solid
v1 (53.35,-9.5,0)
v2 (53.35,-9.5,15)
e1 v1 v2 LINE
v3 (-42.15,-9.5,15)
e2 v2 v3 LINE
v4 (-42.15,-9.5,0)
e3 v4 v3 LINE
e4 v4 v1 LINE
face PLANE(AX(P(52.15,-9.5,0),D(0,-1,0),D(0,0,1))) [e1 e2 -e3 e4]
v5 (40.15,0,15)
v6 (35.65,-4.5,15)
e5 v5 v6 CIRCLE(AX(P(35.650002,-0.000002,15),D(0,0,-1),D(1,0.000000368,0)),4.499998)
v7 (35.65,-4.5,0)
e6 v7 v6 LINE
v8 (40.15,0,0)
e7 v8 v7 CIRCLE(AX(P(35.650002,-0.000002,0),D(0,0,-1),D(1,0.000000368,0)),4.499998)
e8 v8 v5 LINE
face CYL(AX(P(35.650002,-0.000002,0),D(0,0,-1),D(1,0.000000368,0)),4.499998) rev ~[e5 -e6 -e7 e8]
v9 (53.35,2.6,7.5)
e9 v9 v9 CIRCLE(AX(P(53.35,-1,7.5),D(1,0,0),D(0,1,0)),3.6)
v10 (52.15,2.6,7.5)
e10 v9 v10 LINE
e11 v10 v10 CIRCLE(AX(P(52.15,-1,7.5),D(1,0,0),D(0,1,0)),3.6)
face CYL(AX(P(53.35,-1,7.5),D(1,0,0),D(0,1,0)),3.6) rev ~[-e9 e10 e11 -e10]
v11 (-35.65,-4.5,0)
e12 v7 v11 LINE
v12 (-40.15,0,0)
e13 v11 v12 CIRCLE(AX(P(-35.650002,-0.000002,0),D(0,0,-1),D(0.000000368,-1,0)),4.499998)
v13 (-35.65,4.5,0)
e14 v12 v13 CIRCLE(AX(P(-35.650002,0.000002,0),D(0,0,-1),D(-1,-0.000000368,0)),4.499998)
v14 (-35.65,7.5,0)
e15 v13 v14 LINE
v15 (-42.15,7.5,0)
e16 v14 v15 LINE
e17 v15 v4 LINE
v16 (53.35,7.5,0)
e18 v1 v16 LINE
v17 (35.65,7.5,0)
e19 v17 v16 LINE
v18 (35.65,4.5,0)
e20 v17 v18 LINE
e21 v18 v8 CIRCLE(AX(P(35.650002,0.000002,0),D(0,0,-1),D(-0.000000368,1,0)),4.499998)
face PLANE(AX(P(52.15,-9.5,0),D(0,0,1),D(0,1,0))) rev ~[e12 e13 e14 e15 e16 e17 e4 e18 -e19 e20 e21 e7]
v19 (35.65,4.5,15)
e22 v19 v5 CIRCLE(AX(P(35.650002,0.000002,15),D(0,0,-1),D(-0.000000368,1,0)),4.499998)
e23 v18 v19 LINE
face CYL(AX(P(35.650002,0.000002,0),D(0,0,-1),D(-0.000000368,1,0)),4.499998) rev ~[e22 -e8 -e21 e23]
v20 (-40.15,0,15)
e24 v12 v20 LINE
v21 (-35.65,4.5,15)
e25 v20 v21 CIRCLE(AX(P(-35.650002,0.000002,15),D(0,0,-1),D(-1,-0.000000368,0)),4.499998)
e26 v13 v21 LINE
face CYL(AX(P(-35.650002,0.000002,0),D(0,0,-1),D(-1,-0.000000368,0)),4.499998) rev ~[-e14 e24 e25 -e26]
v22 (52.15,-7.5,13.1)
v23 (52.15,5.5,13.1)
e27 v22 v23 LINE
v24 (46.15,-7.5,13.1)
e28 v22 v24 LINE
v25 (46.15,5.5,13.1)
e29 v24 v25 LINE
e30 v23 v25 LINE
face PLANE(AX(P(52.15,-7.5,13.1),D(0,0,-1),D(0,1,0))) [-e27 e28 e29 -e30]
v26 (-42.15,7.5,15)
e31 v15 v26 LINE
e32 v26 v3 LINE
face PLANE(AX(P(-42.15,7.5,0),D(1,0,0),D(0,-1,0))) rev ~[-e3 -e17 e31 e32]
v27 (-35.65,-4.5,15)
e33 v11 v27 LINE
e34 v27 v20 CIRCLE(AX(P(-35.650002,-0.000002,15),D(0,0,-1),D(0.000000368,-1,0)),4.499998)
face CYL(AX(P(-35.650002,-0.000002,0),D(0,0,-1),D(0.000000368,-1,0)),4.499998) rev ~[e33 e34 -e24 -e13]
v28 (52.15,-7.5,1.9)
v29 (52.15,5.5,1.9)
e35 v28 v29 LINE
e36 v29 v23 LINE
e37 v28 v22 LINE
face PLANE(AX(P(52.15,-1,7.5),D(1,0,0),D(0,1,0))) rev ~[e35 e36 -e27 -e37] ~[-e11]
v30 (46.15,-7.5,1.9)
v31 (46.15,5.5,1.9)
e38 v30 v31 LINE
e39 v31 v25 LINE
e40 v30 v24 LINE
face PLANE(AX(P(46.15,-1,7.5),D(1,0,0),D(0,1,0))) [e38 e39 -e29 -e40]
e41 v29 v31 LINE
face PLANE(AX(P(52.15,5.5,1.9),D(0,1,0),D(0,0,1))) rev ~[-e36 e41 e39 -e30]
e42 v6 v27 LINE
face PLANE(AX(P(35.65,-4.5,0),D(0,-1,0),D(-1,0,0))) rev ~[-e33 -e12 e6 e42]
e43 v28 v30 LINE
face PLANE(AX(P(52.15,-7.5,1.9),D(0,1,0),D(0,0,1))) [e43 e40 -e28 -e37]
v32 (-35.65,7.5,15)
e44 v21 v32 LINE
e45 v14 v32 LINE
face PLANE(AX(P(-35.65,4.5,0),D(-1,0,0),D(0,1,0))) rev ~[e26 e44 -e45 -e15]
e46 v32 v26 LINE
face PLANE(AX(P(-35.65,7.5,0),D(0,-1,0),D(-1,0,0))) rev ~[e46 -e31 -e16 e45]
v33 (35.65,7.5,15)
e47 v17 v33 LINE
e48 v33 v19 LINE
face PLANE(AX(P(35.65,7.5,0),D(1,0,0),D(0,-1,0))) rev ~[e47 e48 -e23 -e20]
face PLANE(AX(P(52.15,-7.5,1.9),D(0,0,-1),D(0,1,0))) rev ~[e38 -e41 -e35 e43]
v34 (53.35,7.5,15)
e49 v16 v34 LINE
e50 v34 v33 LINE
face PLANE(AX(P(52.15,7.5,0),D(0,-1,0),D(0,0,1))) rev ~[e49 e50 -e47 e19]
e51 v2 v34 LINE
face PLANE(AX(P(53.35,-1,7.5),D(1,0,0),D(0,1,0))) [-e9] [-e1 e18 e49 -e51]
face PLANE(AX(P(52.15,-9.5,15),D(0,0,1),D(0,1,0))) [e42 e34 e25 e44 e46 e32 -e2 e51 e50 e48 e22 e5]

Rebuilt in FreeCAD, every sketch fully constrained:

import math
import FreeCAD as App
import Part
import Sketcher
from FreeCAD import Vector

doc = App.newDocument("Part")
params = doc.addObject("Spreadsheet::Sheet", "Params")
for row, (alias, value) in enumerate([
    ("sketch1_radius", "4.499998 mm"),
    ("sketch1_height", "3 mm"),
    ("sketch1_height2", "17 mm"),
    ("sketch1_width", "71.3 mm"),
    ("sketch1_width2", "6.5 mm"),
    ("pad1_length", "15 mm"),
    ("sketch2_width", "13 mm"),
    ("sketch2_height", "11.2 mm"),
    ("pocket1_length", "6 mm"),
    ("sketch3_width", "17 mm"),
    ("sketch3_height", "15 mm"),
    ("pad2_length", "1.2 mm"),
    ("sketch4_diameter", "7.2 mm"),
    ("pocket2_length", "2 mm"),
], start=1):
    params.set(f"A{row}", alias)
    params.set(f"B{row}", "=" + value)
    params.setAlias(f"B{row}", alias)

body = doc.addObject("PartDesign::Body", "Body")

sketch1 = body.newObject("Sketcher::SketchObject", "Sketch")
sketch1.AttachmentSupport = (doc.getObject("XY_Plane"), [""])
sketch1.MapMode = "FlatFace"
sketch1.addGeometry([
    Part.ArcOfCircle(Part.Circle(Vector(35.7, 0, 0), Vector(0, 0, 1), 4.5), math.radians(-90), math.radians(0)),
    Part.LineSegment(Vector(35.6, -4.5, 0), Vector(-35.6, -4.5, 0)),
    Part.ArcOfCircle(Part.Circle(Vector(-35.7, 0, 0), Vector(0, 0, 1), 4.5), math.radians(180), math.radians(270)),
    Part.ArcOfCircle(Part.Circle(Vector(-35.7, 0, 0), Vector(0, 0, 1), 4.5), math.radians(90), math.radians(180)),
    Part.LineSegment(Vector(-35.6, 4.5, 0), Vector(-35.6, 7.5, 0)),
    Part.LineSegment(Vector(-35.6, 7.5, 0), Vector(-42.1, 7.5, 0)),
    Part.LineSegment(Vector(-42.1, 7.5, 0), Vector(-42.1, -9.5, 0)),
    Part.LineSegment(Vector(-42.1, -9.5, 0), Vector(52.1, -9.5, 0)),
    Part.LineSegment(Vector(52.1, -9.5, 0), Vector(52.1, 7.5, 0)),
    Part.LineSegment(Vector(52.1, 7.5, 0), Vector(35.6, 7.5, 0)),
    Part.LineSegment(Vector(35.6, 7.5, 0), Vector(35.6, 4.5, 0)),
    Part.ArcOfCircle(Part.Circle(Vector(35.7, 0, 0), Vector(0, 0, 1), 4.5), math.radians(0), math.radians(90)),
], False)
sketch1.addConstraint([
    Sketcher.Constraint("Tangent", 0, 1, 1, 1),
    Sketcher.Constraint("Tangent", 1, 2, 2, 2),
    Sketcher.Constraint("Tangent", 2, 1, 3, 2),
    Sketcher.Constraint("Coincident", 3, 1, 4, 1),
    Sketcher.Constraint("Coincident", 4, 2, 5, 1),
    Sketcher.Constraint("Coincident", 5, 2, 6, 1),
    Sketcher.Constraint("Coincident", 6, 2, 7, 1),
    Sketcher.Constraint("Coincident", 7, 2, 8, 1),
    Sketcher.Constraint("Coincident", 8, 2, 9, 1),
    Sketcher.Constraint("Coincident", 9, 2, 10, 1),
    Sketcher.Constraint("Coincident", 10, 2, 11, 2),
    Sketcher.Constraint("Tangent", 11, 1, 0, 2),
    Sketcher.Constraint("Horizontal", 1),
    Sketcher.Constraint("Vertical", 4),
    Sketcher.Constraint("Horizontal", 5),
    Sketcher.Constraint("Vertical", 6),
    Sketcher.Constraint("Horizontal", 7),
    Sketcher.Constraint("Vertical", 8),
    Sketcher.Constraint("Horizontal", 9),
    Sketcher.Constraint("Vertical", 10),
    Sketcher.Constraint("Equal", 0, 2),
    Sketcher.Constraint("Equal", 2, 3),
    Sketcher.Constraint("Equal", 3, 11),
    Sketcher.Constraint("Symmetric", 0, 3, 2, 3, -1, 1),
    Sketcher.Constraint("Symmetric", 4, 2, 9, 2, -2),
    Sketcher.Constraint("PointOnObject", 2, 1, -1),
    Sketcher.Constraint("PointOnObject", 11, 1, -1),
    Sketcher.Constraint("Vertical", 1, 2, 3, 1),
    Sketcher.Constraint("Radius", 0, 4.499998),
    Sketcher.Constraint("DistanceY", 4, 1, 4, 2, 3.0),
    Sketcher.Constraint("DistanceY", 6, 2, 6, 1, 17.0),
    Sketcher.Constraint("DistanceX", 1, 2, 1, 1, 71.3),
    Sketcher.Constraint("DistanceX", 5, 2, 5, 1, 6.5),
    Sketcher.Constraint("DistanceX", 7, 1, 7, 2, 94.3),
])
sketch1.setExpression("Constraints[28]", "Params.sketch1_radius")
sketch1.setExpression("Constraints[29]", "Params.sketch1_height")
sketch1.setExpression("Constraints[30]", "Params.sketch1_height2")
sketch1.setExpression("Constraints[31]", "Params.sketch1_width")
sketch1.setExpression("Constraints[32]", "Params.sketch1_width2")
pad1 = body.newObject("PartDesign::Pad", "Pad")
pad1.Profile = sketch1
pad1.setExpression("Length", "Params.pad1_length")

sketch2 = body.newObject("Sketcher::SketchObject", "Sketch001")
sketch2.AttachmentSupport = (doc.getObject("YZ_Plane"), [""])
sketch2.MapMode = "FlatFace"
sketch2.AttachmentOffset = App.Placement(Vector(0, 0, 52.15), App.Rotation())
sketch2.addGeometry([
    Part.LineSegment(Vector(-8, 13, 0), Vector(-8, 2, 0)),
    Part.LineSegment(Vector(-8, 2, 0), Vector(6, 2, 0)),
    Part.LineSegment(Vector(6, 2, 0), Vector(6, 13, 0)),
    Part.LineSegment(Vector(6, 13, 0), Vector(-8, 13, 0)),
], False)
sketch2.addConstraint([
    Sketcher.Constraint("Coincident", 0, 2, 1, 1),
    Sketcher.Constraint("Coincident", 1, 2, 2, 1),
    Sketcher.Constraint("Coincident", 2, 2, 3, 1),
    Sketcher.Constraint("Coincident", 3, 2, 0, 1),
    Sketcher.Constraint("Vertical", 0),
    Sketcher.Constraint("Horizontal", 1),
    Sketcher.Constraint("Vertical", 2),
    Sketcher.Constraint("Horizontal", 3),
    Sketcher.Constraint("DistanceX", 1, 1, 1, 2, 13.0),
    Sketcher.Constraint("DistanceY", 0, 2, 0, 1, 11.2),
    Sketcher.Constraint("DistanceX", 0, 2, -1, 1, 7.5),
    Sketcher.Constraint("DistanceY", -1, 1, 0, 2, 1.9),
])
sketch2.setExpression("Constraints[8]", "Params.sketch2_width")
sketch2.setExpression("Constraints[9]", "Params.sketch2_height")
pocket1 = body.newObject("PartDesign::Pocket", "Pocket")
pocket1.Profile = sketch2
pocket1.setExpression("Length", "Params.pocket1_length")

sketch3 = body.newObject("Sketcher::SketchObject", "Sketch002")
sketch3.AttachmentSupport = (doc.getObject("YZ_Plane"), [""])
sketch3.MapMode = "FlatFace"
sketch3.AttachmentOffset = App.Placement(Vector(0, 0, 52.15), App.Rotation())
sketch3.addGeometry([
    Part.LineSegment(Vector(-10, 15, 0), Vector(-10, 0, 0)),
    Part.LineSegment(Vector(-10, 0, 0), Vector(8, 0, 0)),
    Part.LineSegment(Vector(8, 0, 0), Vector(8, 15, 0)),
    Part.LineSegment(Vector(8, 15, 0), Vector(-10, 15, 0)),
], False)
sketch3.addConstraint([
    Sketcher.Constraint("Coincident", 0, 2, 1, 1),
    Sketcher.Constraint("Coincident", 1, 2, 2, 1),
    Sketcher.Constraint("Coincident", 2, 2, 3, 1),
    Sketcher.Constraint("Coincident", 3, 2, 0, 1),
    Sketcher.Constraint("Vertical", 0),
    Sketcher.Constraint("Horizontal", 1),
    Sketcher.Constraint("Vertical", 2),
    Sketcher.Constraint("Horizontal", 3),
    Sketcher.Constraint("PointOnObject", 0, 2, -1),
    Sketcher.Constraint("DistanceX", 1, 1, 1, 2, 17.0),
    Sketcher.Constraint("DistanceY", 0, 2, 0, 1, 15.0),
    Sketcher.Constraint("DistanceX", 0, 2, -1, 1, 9.5),
])
sketch3.setExpression("Constraints[9]", "Params.sketch3_width")
sketch3.setExpression("Constraints[10]", "Params.sketch3_height")
pad2 = body.newObject("PartDesign::Pad", "Pad001")
pad2.Profile = sketch3
pad2.setExpression("Length", "Params.pad2_length")

sketch4 = body.newObject("Sketcher::SketchObject", "Sketch003")
sketch4.AttachmentSupport = (doc.getObject("YZ_Plane"), [""])
sketch4.MapMode = "FlatFace"
sketch4.AttachmentOffset = App.Placement(Vector(0, 0, 53.35), App.Rotation())
sketch4.addGeometry(Part.Circle(Vector(-1, 7.5, 0), Vector(0, 0, 1), 3.6), False)
sketch4.addConstraint([
    Sketcher.Constraint("Diameter", 0, 7.2),
    Sketcher.Constraint("DistanceX", 0, 3, -1, 1, 1.0),
    Sketcher.Constraint("DistanceY", -1, 1, 0, 3, 7.5),
])
sketch4.setExpression("Constraints[0]", "Params.sketch4_diameter")
pocket2 = body.newObject("PartDesign::Pocket", "Pocket001")
pocket2.Profile = sketch4
pocket2.setExpression("Length", "Params.pocket2_length")

doc.recompute()
